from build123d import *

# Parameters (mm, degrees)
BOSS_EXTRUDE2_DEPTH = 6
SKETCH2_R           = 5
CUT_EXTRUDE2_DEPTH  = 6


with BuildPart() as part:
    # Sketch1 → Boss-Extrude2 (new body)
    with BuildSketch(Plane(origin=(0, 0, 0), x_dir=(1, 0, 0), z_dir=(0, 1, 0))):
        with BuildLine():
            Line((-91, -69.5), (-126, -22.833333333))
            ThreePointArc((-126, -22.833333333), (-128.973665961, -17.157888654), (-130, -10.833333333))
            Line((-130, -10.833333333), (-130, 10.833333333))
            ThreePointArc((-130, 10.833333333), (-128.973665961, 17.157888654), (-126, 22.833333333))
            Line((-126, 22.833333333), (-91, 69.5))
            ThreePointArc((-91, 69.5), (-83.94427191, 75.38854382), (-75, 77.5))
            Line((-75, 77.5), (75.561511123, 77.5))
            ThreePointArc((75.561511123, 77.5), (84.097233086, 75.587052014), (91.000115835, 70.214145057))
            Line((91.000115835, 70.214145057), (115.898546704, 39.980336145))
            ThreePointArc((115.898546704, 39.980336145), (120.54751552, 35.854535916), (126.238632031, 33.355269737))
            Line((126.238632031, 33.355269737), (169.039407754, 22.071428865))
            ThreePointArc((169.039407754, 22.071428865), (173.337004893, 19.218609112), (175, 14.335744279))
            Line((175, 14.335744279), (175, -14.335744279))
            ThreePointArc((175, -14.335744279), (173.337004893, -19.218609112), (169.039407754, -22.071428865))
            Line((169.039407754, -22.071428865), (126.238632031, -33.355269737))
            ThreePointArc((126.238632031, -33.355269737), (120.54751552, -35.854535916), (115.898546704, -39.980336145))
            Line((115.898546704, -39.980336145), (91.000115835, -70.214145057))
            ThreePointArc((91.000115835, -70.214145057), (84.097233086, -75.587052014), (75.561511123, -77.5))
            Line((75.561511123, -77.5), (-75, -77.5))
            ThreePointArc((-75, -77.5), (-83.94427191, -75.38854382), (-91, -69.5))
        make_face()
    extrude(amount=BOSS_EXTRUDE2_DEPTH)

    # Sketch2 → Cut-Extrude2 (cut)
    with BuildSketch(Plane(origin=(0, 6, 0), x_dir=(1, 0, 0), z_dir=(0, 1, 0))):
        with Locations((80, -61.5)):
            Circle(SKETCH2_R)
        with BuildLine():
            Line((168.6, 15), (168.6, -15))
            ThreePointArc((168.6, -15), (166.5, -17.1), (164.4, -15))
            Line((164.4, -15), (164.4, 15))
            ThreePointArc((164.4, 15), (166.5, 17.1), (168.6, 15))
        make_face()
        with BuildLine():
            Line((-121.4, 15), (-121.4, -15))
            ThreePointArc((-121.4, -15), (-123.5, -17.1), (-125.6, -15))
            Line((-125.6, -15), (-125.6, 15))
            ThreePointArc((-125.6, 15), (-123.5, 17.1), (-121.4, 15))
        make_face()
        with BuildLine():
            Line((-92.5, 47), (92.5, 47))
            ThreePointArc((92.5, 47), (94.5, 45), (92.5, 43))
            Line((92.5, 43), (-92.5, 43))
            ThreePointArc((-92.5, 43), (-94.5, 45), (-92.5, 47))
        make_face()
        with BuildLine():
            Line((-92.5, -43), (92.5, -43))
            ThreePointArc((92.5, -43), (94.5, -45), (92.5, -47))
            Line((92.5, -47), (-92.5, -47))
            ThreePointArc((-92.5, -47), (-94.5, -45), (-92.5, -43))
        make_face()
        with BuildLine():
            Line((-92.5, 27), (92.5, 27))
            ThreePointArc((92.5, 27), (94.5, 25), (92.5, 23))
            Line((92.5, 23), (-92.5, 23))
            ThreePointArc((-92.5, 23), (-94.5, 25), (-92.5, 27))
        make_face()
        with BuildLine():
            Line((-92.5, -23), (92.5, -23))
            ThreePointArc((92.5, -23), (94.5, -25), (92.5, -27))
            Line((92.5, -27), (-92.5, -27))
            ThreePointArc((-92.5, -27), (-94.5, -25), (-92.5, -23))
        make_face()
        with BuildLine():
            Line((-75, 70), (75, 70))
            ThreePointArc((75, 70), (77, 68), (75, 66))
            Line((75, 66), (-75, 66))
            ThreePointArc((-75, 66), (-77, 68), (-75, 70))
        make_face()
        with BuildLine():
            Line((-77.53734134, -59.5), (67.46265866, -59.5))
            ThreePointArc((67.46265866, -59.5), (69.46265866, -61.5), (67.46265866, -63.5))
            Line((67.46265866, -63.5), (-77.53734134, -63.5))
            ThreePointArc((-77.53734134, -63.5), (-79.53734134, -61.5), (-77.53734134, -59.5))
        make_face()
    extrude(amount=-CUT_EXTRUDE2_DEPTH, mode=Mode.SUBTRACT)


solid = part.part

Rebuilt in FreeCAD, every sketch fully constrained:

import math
import FreeCAD as App
import Part
import Sketcher
from FreeCAD import Vector

doc = App.newDocument("Part")
params = doc.addObject("Spreadsheet::Sheet", "Params")
for row, (alias, value) in enumerate([
    ("sketch1_radius", "20 mm"),
    ("sketch1_radius2", "8 mm"),
    ("pad1_length", "6 mm"),
    ("sketch2_diameter", "10 mm"),
    ("sketch2_radius", "2 mm"),
    ("sketch2_radius2", "2.1 mm"),
    ("sketch2_width", "185 mm"),
    ("sketch2_width2", "150 mm"),
    ("pocket1_length", "6 mm"),
], start=1):
    params.set(f"A{row}", alias)
    params.set(f"B{row}", "=" + value)
    params.setAlias(f"B{row}", alias)

body = doc.addObject("PartDesign::Body", "Body")

# Sketch on XZ plane
sketch1 = doc.addObject("Sketcher::SketchObject", "Sketch")
body.addObject(sketch1)
sketch1.AttachmentSupport = (doc.XZ_Plane, [""])
sketch1.MapMode = "FlatFace"
sketch1.addGeometry([
    Part.LineSegment(Vector(-126, 23, 0), Vector(-91, 70, 0)),  # 0
    Part.ArcOfCircle(Part.Circle(Vector(-75, 58, 0), Vector(0, 0, 1), 20), math.radians(90), math.radians(143)),  # 1
    Part.LineSegment(Vector(-75, 78, 0), Vector(76, 78, 0)),  # 2
    Part.ArcOfCircle(Part.Circle(Vector(76, 57, 0), Vector(0, 0, 1), 20), math.radians(39), math.radians(90)),  # 3
    Part.LineSegment(Vector(91, 70, 0), Vector(116, 40, 0)),  # 4
    Part.ArcOfCircle(Part.Circle(Vector(131, 53, 0), Vector(0, 0, 1), 20), math.radians(-141), math.radians(-105)),  # 5
    Part.LineSegment(Vector(126, 33, 0), Vector(169, 22, 0)),  # 6
    Part.ArcOfCircle(Part.Circle(Vector(167, 14, 0), Vector(0, 0, 1), 8), math.radians(0), math.radians(75)),  # 7
    Part.LineSegment(Vector(175, 14, 0), Vector(175, -14, 0)),  # 8
    Part.ArcOfCircle(Part.Circle(Vector(167, -14, 0), Vector(0, 0, 1), 8), math.radians(-75), math.radians(0)),  # 9
    Part.LineSegment(Vector(169, -22, 0), Vector(126, -33, 0)),  # 10
    Part.ArcOfCircle(Part.Circle(Vector(131, -53, 0), Vector(0, 0, 1), 20), math.radians(105), math.radians(141)),  # 11
    Part.LineSegment(Vector(116, -40, 0), Vector(91, -70, 0)),  # 12
    Part.ArcOfCircle(Part.Circle(Vector(76, -57, 0), Vector(0, 0, 1), 20), math.radians(-90), math.radians(-39)),  # 13
    Part.LineSegment(Vector(76, -78, 0), Vector(-75, -78, 0)),  # 14
    Part.ArcOfCircle(Part.Circle(Vector(-75, -58, 0), Vector(0, 0, 1), 20), math.radians(-143), math.radians(-90)),  # 15
    Part.LineSegment(Vector(-91, -70, 0), Vector(-126, -23, 0)),  # 16
    Part.ArcOfCircle(Part.Circle(Vector(-110, -11, 0), Vector(0, 0, 1), 20), math.radians(180), math.radians(217)),  # 17
    Part.LineSegment(Vector(-130, -11, 0), Vector(-130, 11, 0)),  # 18
    Part.ArcOfCircle(Part.Circle(Vector(-110, 11, 0), Vector(0, 0, 1), 20), math.radians(143), math.radians(180)),  # 19
], False)
sketch1.addConstraint([
    Sketcher.Constraint("Tangent", 0, 2, 1, 2),
    Sketcher.Constraint("Tangent", 1, 1, 2, 1),
    Sketcher.Constraint("Tangent", 2, 2, 3, 2),
    Sketcher.Constraint("Tangent", 3, 1, 4, 1),
    Sketcher.Constraint("Tangent", 4, 2, 5, 1),
    Sketcher.Constraint("Tangent", 5, 2, 6, 1),
    Sketcher.Constraint("Tangent", 6, 2, 7, 2),
    Sketcher.Constraint("Tangent", 7, 1, 8, 1),
    Sketcher.Constraint("Tangent", 8, 2, 9, 2),
    Sketcher.Constraint("Tangent", 9, 1, 10, 1),
    Sketcher.Constraint("Tangent", 10, 2, 11, 1),
    Sketcher.Constraint("Tangent", 11, 2, 12, 1),
    Sketcher.Constraint("Tangent", 12, 2, 13, 2),
    Sketcher.Constraint("Tangent", 13, 1, 14, 1),
    Sketcher.Constraint("Tangent", 14, 2, 15, 2),
    Sketcher.Constraint("Tangent", 15, 1, 16, 1),
    Sketcher.Constraint("Tangent", 16, 2, 17, 2),
    Sketcher.Constraint("Tangent", 17, 1, 18, 1),
    Sketcher.Constraint("Tangent", 18, 2, 19, 2),
    Sketcher.Constraint("Tangent", 19, 1, 0, 1),
    Sketcher.Constraint("Horizontal", 2),
    Sketcher.Constraint("Vertical", 8),
    Sketcher.Constraint("Horizontal", 14),
    Sketcher.Constraint("Vertical", 18),
    Sketcher.Constraint("Equal", 1, 3),
    Sketcher.Constraint("Equal", 3, 5),
    Sketcher.Constraint("Equal", 7, 9),
    Sketcher.Constraint("Equal", 5, 11),
    Sketcher.Constraint("Equal", 11, 13),
    Sketcher.Constraint("Equal", 13, 15),
    Sketcher.Constraint("Equal", 15, 17),
    Sketcher.Constraint("Equal", 17, 19),
    Sketcher.Constraint("Symmetric", 5, 3, 11, 3, -1),
    Sketcher.Constraint("Symmetric", 3, 3, 13, 3, -1),
    Sketcher.Constraint("Symmetric", 0, 2, 15, 1, -1),
    Sketcher.Constraint("Vertical", 6, 2, 9, 1),
    Sketcher.Constraint("Radius", 1, 20.0),
    Sketcher.Constraint("Radius", 7, 8.0),
    Sketcher.Constraint("DistanceX", 1, 3, -1, 1, 75.0),
    Sketcher.Constraint("DistanceX", -1, 1, 7, 3, 167.0),
    Sketcher.Constraint("DistanceX", 17, 3, -1, 1, 110.0),
    Sketcher.Constraint("DistanceX", 0, 2, -1, 1, 91.0),
    Sketcher.Constraint("DistanceY", 13, 3, 3, 3, 115.0),
    Sketcher.Constraint("DistanceX", 2, 1, 2, 2, 150.561511),
    Sketcher.Constraint("DistanceY", 8, 2, 8, 1, 28.671489),
    Sketcher.Constraint("DistanceY", 7, 3, 3, 1, 55.878401),
    Sketcher.Constraint("DistanceX", -1, 1, 5, 3, 131.337151),
])
sketch1.setExpression("Constraints[36]", "Params.sketch1_radius")
sketch1.setExpression("Constraints[37]", "Params.sketch1_radius2")
pad1 = doc.addObject("PartDesign::Pad", "Pad")
body.addObject(pad1)
pad1.Profile = sketch1
pad1.setExpression("Length", "Params.pad1_length")
pad1.Reversed = True

# Sketch on XZ plane
sketch2 = doc.addObject("Sketcher::SketchObject", "Sketch001")
body.addObject(sketch2)
sketch2.AttachmentSupport = (doc.XZ_Plane, [""])
sketch2.MapMode = "FlatFace"
sketch2.AttachmentOffset = App.Placement(Vector(0, 0, -6), App.Rotation())
sketch2.addGeometry([
    Part.Circle(Vector(80, 61.5, 0), Vector(0, 0, 1), 5),  # 0
    Part.LineSegment(Vector(168.6, 15, 0), Vector(168.6, -15, 0)),  # 1
    Part.ArcOfCircle(Part.Circle(Vector(166.5, -15, 0), Vector(0, 0, 1), 2.1), math.radians(180), math.radians(360)),  # 2
    Part.LineSegment(Vector(164.4, -15, 0), Vector(164.4, 15, 0)),  # 3
    Part.ArcOfCircle(Part.Circle(Vector(166.5, 15, 0), Vector(0, 0, 1), 2.1), math.radians(0), math.radians(180)),  # 4
    Part.LineSegment(Vector(-121.4, 15, 0), Vector(-121.4, -15, 0)),  # 5
    Part.ArcOfCircle(Part.Circle(Vector(-123.5, -15, 0), Vector(0, 0, 1), 2.1), math.radians(180), math.radians(360)),  # 6
    Part.LineSegment(Vector(-125.6, -15, 0), Vector(-125.6, 15, 0)),  # 7
    Part.ArcOfCircle(Part.Circle(Vector(-123.5, 15, 0), Vector(0, 0, 1), 2.1), math.radians(0), math.radians(180)),  # 8
    Part.LineSegment(Vector(92.5, -47, 0), Vector(-92.5, -47, 0)),  # 9
    Part.ArcOfCircle(Part.Circle(Vector(-92.5, -45, 0), Vector(0, 0, 1), 2), math.radians(90), math.radians(270)),  # 10
    Part.LineSegment(Vector(-92.5, -43, 0), Vector(92.5, -43, 0)),  # 11
    Part.ArcOfCircle(Part.Circle(Vector(92.5, -45, 0), Vector(0, 0, 1), 2), math.radians(-90), math.radians(90)),  # 12
    Part.LineSegment(Vector(92.5, 43, 0), Vector(-92.5, 43, 0)),  # 13
    Part.ArcOfCircle(Part.Circle(Vector(-92.5, 45, 0), Vector(0, 0, 1), 2), math.radians(90), math.radians(270)),  # 14
    Part.LineSegment(Vector(-92.5, 47, 0), Vector(92.5, 47, 0)),  # 15
    Part.ArcOfCircle(Part.Circle(Vector(92.5, 45, 0), Vector(0, 0, 1), 2), math.radians(-90), math.radians(90)),  # 16
    Part.LineSegment(Vector(92.5, -27, 0), Vector(-92.5, -27, 0)),  # 17
    Part.ArcOfCircle(Part.Circle(Vector(-92.5, -25, 0), Vector(0, 0, 1), 2), math.radians(90), math.radians(270)),  # 18
    Part.LineSegment(Vector(-92.5, -23, 0), Vector(92.5, -23, 0)),  # 19
    Part.ArcOfCircle(Part.Circle(Vector(92.5, -25, 0), Vector(0, 0, 1), 2), math.radians(-90), math.radians(90)),  # 20
    Part.LineSegment(Vector(92.5, 23, 0), Vector(-92.5, 23, 0)),  # 21
    Part.ArcOfCircle(Part.Circle(Vector(-92.5, 25, 0), Vector(0, 0, 1), 2), math.radians(90), math.radians(270)),  # 22
    Part.LineSegment(Vector(-92.5, 27, 0), Vector(92.5, 27, 0)),  # 23
    Part.ArcOfCircle(Part.Circle(Vector(92.5, 25, 0), Vector(0, 0, 1), 2), math.radians(-90), math.radians(90)),  # 24
    Part.LineSegment(Vector(75, -70, 0), Vector(-75, -70, 0)),  # 25
    Part.ArcOfCircle(Part.Circle(Vector(-75, -68, 0), Vector(0, 0, 1), 2), math.radians(90), math.radians(270)),  # 26
    Part.LineSegment(Vector(-75, -66, 0), Vector(75, -66, 0)),  # 27
    Part.ArcOfCircle(Part.Circle(Vector(75, -68, 0), Vector(0, 0, 1), 2), math.radians(-90), math.radians(90)),  # 28
    Part.LineSegment(Vector(67.5, 59.5, 0), Vector(-77.5, 59.5, 0)),  # 29
    Part.ArcOfCircle(Part.Circle(Vector(-77.5, 61.5, 0), Vector(0, 0, 1), 2), math.radians(90), math.radians(270)),  # 30
    Part.LineSegment(Vector(-77.5, 63.5, 0), Vector(67.5, 63.5, 0)),  # 31
    Part.ArcOfCircle(Part.Circle(Vector(67.5, 61.5, 0), Vector(0, 0, 1), 2), math.radians(-90), math.radians(90)),  # 32
], False)
sketch2.addConstraint([
    Sketcher.Constraint("Tangent", 1, 2, 2, 2),
    Sketcher.Constraint("Tangent", 2, 1, 3, 1),
    Sketcher.Constraint("Tangent", 3, 2, 4, 2),
    Sketcher.Constraint("Tangent", 4, 1, 1, 1),
    Sketcher.Constraint("Tangent", 5, 2, 6, 2),
    Sketcher.Constraint("Tangent", 6, 1, 7, 1),
    Sketcher.Constraint("Tangent", 7, 2, 8, 2),
    Sketcher.Constraint("Tangent", 8, 1, 5, 1),
    Sketcher.Constraint("Tangent", 9, 2, 10, 2),
    Sketcher.Constraint("Tangent", 10, 1, 11, 1),
    Sketcher.Constraint("Tangent", 11, 2, 12, 2),
    Sketcher.Constraint("Tangent", 12, 1, 9, 1),
    Sketcher.Constraint("Tangent", 13, 2, 14, 2),
    Sketcher.Constraint("Tangent", 14, 1, 15, 1),
    Sketcher.Constraint("Tangent", 15, 2, 16, 2),
    Sketcher.Constraint("Tangent", 16, 1, 13, 1),
    Sketcher.Constraint("Tangent", 17, 2, 18, 2),
    Sketcher.Constraint("Tangent", 18, 1, 19, 1),
    Sketcher.Constraint("Tangent", 19, 2, 20, 2),
    Sketcher.Constraint("Tangent", 20, 1, 17, 1),
    Sketcher.Constraint("Tangent", 21, 2, 22, 2),
    Sketcher.Constraint("Tangent", 22, 1, 23, 1),
    Sketcher.Constraint("Tangent", 23, 2, 24, 2),
    Sketcher.Constraint("Tangent", 24, 1, 21, 1),
    Sketcher.Constraint("Tangent", 25, 2, 26, 2),
    Sketcher.Constraint("Tangent", 26, 1, 27, 1),
    Sketcher.Constraint("Tangent", 27, 2, 28, 2),
    Sketcher.Constraint("Tangent", 28, 1, 25, 1),
    Sketcher.Constraint("Tangent", 29, 2, 30, 2),
    Sketcher.Constraint("Tangent", 30, 1, 31, 1),
    Sketcher.Constraint("Tangent", 31, 2, 32, 2),
    Sketcher.Constraint("Tangent", 32, 1, 29, 1),
    Sketcher.Constraint("Vertical", 1),
    Sketcher.Constraint("Vertical", 3),
    Sketcher.Constraint("Vertical", 5),
    Sketcher.Constraint("Vertical", 7),
    Sketcher.Constraint("Horizontal", 9),
    Sketcher.Constraint("Horizontal", 11),
    Sketcher.Constraint("Horizontal", 13),
    Sketcher.Constraint("Horizontal", 15),
    Sketcher.Constraint("Horizontal", 17),
    Sketcher.Constraint("Horizontal", 19),
    Sketcher.Constraint("Horizontal", 21),
    Sketcher.Constraint("Horizontal", 23),
    Sketcher.Constraint("Horizontal", 25),
    Sketcher.Constraint("Horizontal", 27),
    Sketcher.Constraint("Horizontal", 29),
    Sketcher.Constraint("Horizontal", 31),
    Sketcher.Constraint("Equal", 4, 6),
    Sketcher.Constraint("Equal", 12, 14),
    Sketcher.Constraint("Equal", 16, 18),
    Sketcher.Constraint("Equal", 20, 22),
    Sketcher.Constraint("Equal", 24, 26),
    Sketcher.Constraint("Equal", 28, 30),
    Sketcher.Constraint("Symmetric", 12, 3, 14, 3, -1, 1),
    Sketcher.Constraint("Symmetric", 20, 3, 22, 3, -1, 1),
    Sketcher.Constraint("Horizontal", 2, 3, 6, 3),
    Sketcher.Constraint("Horizontal", 4, 3, 8, 3),
    Sketcher.Constraint("Horizontal", 0, 3, 30, 3),
    Sketcher.Constraint("Vertical", 10, 3, 14, 3),
    Sketcher.Constraint("Vertical", 12, 3, 16, 3),
    Sketcher.Constraint("Vertical", 14, 3, 18, 3),
    Sketcher.Constraint("Vertical", 16, 3, 20, 3),
    Sketcher.Constraint("Vertical", 20, 3, 24, 3),
    Sketcher.Constraint("Diameter", 0, 10.0),
    Sketcher.Constraint("Radius", 10, 2.0),
    Sketcher.Constraint("Radius", 2, 2.1),
    Sketcher.Constraint("DistanceX", 9, 2, 9, 1, 185.0),
    Sketcher.Constraint("DistanceX", 25, 2, 25, 1, 150.0),
    Sketcher.Constraint("DistanceX", 29, 2, 29, 1, 145.0),
    Sketcher.Constraint("DistanceY", 1, 2, 1, 1, 30.0),
    Sketcher.Constraint("DistanceX", -1, 1, 0, 3, 80.0),
    Sketcher.Constraint("DistanceY", 2, 3, -1, 1, 15.0),
    Sketcher.Constraint("DistanceY", 10, 3, -1, 1, 45.0),
    Sketcher.Constraint("DistanceY", 18, 3, -1, 1, 25.0),
    Sketcher.Constraint("DistanceX", 26, 3, -1, 1, 75.0),
    Sketcher.Constraint("DistanceY", 26, 3, -1, 1, 68.0),
    Sketcher.Constraint("DistanceX", 6, 3, 2, 3, 290.0),
    Sketcher.Constraint("DistanceX", 6, 3, 10, 3, 31.0),
    Sketcher.Constraint("DistanceY", -1, 1, 0, 3, 61.5),
    Sketcher.Constraint("DistanceX", 30, 3, -1, 1, 77.537341),
])
sketch2.setExpression("Constraints[64]", "Params.sketch2_diameter")
sketch2.setExpression("Constraints[65]", "Params.sketch2_radius")
sketch2.setExpression("Constraints[66]", "Params.sketch2_radius2")
sketch2.setExpression("Constraints[67]", "Params.sketch2_width")
sketch2.setExpression("Constraints[68]", "Params.sketch2_width2")
pocket1 = doc.addObject("PartDesign::Pocket", "Pocket")
body.addObject(pocket1)
pocket1.Profile = sketch2
pocket1.setExpression("Length", "Params.pocket1_length")
pocket1.Reversed = True

doc.recompute()
